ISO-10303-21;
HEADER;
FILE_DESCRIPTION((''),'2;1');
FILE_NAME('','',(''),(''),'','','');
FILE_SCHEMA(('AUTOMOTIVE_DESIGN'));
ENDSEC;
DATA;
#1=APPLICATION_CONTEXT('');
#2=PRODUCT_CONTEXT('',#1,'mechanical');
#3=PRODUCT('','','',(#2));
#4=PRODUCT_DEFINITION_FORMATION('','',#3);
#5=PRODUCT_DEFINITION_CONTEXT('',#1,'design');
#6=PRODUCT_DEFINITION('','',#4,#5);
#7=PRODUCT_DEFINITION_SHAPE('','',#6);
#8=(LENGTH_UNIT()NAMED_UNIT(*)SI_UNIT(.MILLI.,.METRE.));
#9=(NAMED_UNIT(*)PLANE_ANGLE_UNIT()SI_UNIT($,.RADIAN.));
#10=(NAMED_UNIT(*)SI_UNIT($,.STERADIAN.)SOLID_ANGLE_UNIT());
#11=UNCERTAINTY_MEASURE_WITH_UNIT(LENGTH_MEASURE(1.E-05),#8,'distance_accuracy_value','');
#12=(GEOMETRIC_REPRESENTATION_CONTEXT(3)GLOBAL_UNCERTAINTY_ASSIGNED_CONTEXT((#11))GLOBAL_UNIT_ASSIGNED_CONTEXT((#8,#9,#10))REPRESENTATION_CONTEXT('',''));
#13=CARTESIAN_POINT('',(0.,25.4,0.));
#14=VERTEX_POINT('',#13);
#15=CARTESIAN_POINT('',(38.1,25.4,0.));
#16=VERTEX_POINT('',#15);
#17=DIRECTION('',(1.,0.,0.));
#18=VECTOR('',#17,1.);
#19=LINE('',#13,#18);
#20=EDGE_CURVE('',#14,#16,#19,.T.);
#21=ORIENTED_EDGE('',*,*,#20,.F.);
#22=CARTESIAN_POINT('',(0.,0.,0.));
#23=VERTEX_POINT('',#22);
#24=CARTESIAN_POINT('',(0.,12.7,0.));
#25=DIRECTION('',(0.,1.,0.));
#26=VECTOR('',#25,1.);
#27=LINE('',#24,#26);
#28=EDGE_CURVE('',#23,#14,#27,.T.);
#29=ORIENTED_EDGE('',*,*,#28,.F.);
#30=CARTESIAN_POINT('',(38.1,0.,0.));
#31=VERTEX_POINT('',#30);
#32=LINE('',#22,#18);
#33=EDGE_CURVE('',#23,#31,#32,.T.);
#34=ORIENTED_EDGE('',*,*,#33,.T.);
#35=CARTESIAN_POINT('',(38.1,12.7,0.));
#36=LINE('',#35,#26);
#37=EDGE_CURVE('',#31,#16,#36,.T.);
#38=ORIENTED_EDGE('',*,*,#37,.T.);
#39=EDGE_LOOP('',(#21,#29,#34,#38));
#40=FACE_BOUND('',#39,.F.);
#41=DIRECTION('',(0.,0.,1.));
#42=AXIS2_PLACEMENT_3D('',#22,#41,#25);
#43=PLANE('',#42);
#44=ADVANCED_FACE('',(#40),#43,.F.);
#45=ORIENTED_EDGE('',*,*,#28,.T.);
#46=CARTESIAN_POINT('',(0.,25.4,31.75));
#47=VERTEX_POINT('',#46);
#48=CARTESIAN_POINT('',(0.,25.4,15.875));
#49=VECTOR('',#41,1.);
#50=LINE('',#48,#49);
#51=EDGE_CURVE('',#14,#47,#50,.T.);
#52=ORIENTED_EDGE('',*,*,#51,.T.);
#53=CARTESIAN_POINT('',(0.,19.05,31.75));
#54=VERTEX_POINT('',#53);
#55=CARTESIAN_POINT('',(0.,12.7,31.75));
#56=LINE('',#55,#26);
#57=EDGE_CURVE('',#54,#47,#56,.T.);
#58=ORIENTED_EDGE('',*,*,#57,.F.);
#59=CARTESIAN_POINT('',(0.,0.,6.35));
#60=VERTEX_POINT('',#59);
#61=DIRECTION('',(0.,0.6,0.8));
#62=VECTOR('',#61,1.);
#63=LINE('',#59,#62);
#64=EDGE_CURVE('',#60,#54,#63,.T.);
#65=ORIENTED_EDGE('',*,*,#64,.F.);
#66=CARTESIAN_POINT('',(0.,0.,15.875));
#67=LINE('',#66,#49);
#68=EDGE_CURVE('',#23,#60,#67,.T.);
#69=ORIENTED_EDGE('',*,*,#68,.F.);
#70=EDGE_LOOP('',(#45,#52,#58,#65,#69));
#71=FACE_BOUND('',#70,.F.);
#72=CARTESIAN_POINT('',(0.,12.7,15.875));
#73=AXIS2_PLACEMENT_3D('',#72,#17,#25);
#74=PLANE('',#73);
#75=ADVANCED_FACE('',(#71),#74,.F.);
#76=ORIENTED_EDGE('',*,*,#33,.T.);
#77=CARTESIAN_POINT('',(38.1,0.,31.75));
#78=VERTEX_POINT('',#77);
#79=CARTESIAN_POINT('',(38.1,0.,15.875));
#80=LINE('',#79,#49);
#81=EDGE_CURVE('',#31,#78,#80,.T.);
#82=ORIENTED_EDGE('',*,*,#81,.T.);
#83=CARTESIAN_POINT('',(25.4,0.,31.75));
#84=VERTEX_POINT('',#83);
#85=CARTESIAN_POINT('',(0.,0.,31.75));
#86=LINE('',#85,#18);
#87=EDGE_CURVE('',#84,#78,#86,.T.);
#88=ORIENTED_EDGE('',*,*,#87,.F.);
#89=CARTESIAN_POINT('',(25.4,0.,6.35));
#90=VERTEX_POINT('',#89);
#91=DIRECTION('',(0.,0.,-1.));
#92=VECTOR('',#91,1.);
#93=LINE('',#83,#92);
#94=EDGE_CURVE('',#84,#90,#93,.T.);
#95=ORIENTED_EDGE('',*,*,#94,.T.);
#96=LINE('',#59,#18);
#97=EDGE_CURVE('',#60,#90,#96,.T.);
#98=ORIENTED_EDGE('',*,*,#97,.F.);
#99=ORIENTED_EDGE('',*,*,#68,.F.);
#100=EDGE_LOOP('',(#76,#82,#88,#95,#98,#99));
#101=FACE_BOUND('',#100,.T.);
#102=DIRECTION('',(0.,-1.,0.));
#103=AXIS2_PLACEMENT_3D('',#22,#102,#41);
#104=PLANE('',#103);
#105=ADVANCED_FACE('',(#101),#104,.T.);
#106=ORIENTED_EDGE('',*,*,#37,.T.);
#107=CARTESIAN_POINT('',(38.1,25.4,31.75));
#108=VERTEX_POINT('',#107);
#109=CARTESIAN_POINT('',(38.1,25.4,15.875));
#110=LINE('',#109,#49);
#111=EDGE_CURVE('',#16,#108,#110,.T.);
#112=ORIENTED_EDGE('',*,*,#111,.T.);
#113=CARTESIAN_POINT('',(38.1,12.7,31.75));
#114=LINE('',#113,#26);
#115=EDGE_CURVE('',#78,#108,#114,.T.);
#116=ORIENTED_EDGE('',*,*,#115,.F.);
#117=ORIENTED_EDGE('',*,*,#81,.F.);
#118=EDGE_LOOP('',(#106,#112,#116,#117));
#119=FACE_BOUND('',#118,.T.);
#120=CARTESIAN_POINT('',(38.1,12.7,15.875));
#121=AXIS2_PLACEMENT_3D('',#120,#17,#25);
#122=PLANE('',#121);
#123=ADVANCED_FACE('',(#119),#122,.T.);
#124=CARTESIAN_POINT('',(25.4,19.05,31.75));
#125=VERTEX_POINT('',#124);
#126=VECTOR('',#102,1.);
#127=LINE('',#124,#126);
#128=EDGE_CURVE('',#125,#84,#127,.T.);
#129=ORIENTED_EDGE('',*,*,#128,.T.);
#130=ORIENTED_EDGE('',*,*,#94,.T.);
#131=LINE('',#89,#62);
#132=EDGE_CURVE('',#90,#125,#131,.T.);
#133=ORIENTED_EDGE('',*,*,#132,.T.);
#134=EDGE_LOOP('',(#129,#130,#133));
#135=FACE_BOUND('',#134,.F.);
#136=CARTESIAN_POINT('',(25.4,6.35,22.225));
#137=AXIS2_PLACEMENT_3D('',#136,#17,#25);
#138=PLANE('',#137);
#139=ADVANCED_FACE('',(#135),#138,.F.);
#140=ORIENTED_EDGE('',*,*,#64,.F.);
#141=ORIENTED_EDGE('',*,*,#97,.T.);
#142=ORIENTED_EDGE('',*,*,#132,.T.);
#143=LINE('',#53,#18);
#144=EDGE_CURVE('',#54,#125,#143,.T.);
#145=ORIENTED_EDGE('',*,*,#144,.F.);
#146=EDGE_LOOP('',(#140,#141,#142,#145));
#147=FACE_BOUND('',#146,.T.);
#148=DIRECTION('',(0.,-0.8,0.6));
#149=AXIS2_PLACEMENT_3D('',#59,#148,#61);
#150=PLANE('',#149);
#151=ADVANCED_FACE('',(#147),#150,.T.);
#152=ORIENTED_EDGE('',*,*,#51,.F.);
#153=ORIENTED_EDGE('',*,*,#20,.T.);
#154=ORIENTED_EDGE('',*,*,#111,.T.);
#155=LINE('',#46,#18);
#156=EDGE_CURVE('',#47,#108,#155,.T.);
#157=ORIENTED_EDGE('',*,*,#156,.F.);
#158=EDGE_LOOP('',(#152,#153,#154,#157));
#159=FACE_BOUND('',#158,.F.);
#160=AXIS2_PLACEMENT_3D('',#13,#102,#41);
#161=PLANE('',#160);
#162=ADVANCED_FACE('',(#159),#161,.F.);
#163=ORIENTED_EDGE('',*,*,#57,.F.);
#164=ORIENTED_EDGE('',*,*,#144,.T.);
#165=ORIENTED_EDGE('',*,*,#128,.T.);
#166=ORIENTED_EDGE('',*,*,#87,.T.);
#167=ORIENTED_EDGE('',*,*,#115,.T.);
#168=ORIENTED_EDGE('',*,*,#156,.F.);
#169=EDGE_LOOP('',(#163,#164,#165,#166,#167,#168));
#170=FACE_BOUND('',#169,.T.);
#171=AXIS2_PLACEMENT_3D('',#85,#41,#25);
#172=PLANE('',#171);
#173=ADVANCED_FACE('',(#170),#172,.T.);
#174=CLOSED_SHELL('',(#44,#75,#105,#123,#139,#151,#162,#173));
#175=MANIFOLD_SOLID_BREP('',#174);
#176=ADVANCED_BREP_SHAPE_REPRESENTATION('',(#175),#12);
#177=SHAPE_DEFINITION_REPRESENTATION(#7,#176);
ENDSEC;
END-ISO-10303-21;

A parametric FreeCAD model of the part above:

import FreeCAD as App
import Part
import Sketcher

V = App.Vector
Q = App.Units.Quantity


def add_polygon(sketch, points):
    """Adds a closed chain of lines whose ends are joined by coincident constraints."""
    first, n = sketch.GeometryCount, len(points)
    for a, b in zip(points, points[1:] + points[:1]):
        sketch.addGeometry(Part.LineSegment(App.Vector(*a, 0), App.Vector(*b, 0)), False)
    for i in range(n):
        sketch.addConstraint(Sketcher.Constraint("Coincident", first + i, 2, first + (i + 1) % n, 1))

doc = App.newDocument("Part")
params = doc.addObject("Spreadsheet::Sheet", "Params")
for row, (alias, value) in enumerate([
    ("sketch1_width", "1 in"),
    ("sketch1_height", "1.25 in"),
    ("pad1_length", "1.5 in"),
    ("sketch2_height", "1 in"),
    ("sketch2_width", "0.75 in"),
    ("pocket1_length", "1 in"),
], start=1):
    params.set(f"A{row}", alias)
    params.set(f"B{row}", "=" + value)
    params.setAlias(f"B{row}", alias)

body = doc.addObject("PartDesign::Body", "Body")

sketch1 = doc.addObject("Sketcher::SketchObject", "Sketch")
body.addObject(sketch1)
sketch1.AttachmentSupport = (doc.YZ_Plane, [""])
sketch1.MapMode = "FlatFace"
add_polygon(sketch1, [(0, 31.75), (0, 0), (25.4, 0), (25.4, 31.75)])
sketch1.addConstraint([
    Sketcher.Constraint("Vertical", 0),
    Sketcher.Constraint("Horizontal", 1),
    Sketcher.Constraint("Vertical", 2),
    Sketcher.Constraint("Horizontal", 3),
    Sketcher.Constraint("Coincident", 0, 2, -1, 1),
    Sketcher.Constraint("DistanceX", 1, 1, 1, 2, Q("1 in")),
    Sketcher.Constraint("DistanceY", 0, 2, 0, 1, Q("1.25 in")),
])
sketch1.setExpression("Constraints[9]", "Params.sketch1_width")
sketch1.setExpression("Constraints[10]", "Params.sketch1_height")
pad1 = doc.addObject("PartDesign::Pad", "Pad")
body.addObject(pad1)
pad1.Profile = sketch1
pad1.setExpression("Length", "Params.pad1_length")

sketch2 = doc.addObject("Sketcher::SketchObject", "Sketch001")
body.addObject(sketch2)
sketch2.AttachmentSupport = (doc.YZ_Plane, [""])
sketch2.MapMode = "FlatFace"
add_polygon(sketch2, [(0, 31.75), (0, 6.35), (19.05, 31.75)])
sketch2.addConstraint([
    Sketcher.Constraint("Vertical", 0),
    Sketcher.Constraint("Horizontal", 2),
    Sketcher.Constraint("PointOnObject", 0, 2, -2),
    Sketcher.Constraint("DistanceY", 0, 2, 0, 1, Q("1 in")),
    Sketcher.Constraint("DistanceX", 2, 2, 2, 1, Q("0.75 in")),
    Sketcher.Constraint("DistanceY", -1, 1, 0, 2, Q("0.25 in")),
])
sketch2.setExpression("Constraints[6]", "Params.sketch2_height")
sketch2.setExpression("Constraints[7]", "Params.sketch2_width")
pocket1 = doc.addObject("PartDesign::Pocket", "Pocket")
body.addObject(pocket1)
pocket1.Profile = sketch2
pocket1.setExpression("Length", "Params.pocket1_length")
pocket1.Reversed = True

doc.recompute()
